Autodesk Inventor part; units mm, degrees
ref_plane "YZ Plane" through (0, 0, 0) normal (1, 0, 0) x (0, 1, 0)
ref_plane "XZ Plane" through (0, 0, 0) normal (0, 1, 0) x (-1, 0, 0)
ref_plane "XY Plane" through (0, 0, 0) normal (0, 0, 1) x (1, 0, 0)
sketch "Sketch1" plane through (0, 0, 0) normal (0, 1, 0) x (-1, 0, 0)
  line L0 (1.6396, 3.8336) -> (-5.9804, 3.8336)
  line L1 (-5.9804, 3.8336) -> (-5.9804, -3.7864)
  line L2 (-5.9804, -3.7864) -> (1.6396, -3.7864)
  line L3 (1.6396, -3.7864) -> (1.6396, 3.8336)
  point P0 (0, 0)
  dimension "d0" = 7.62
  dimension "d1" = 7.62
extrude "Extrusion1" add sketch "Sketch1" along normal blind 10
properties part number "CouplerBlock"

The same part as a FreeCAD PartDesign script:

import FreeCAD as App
import Part
import Sketcher
Q = App.Units.Quantity


def add_polygon(sketch, points):
    """Adds a closed chain of lines whose ends are joined by coincident constraints."""
    first, n = sketch.GeometryCount, len(points)
    for a, b in zip(points, points[1:] + points[:1]):
        sketch.addGeometry(Part.LineSegment(App.Vector(*a, 0), App.Vector(*b, 0)), False)
    for i in range(n):
        sketch.addConstraint(Sketcher.Constraint("Coincident", first + i, 2, first + (i + 1) % n, 1))

doc = App.newDocument("Part")
params = doc.addObject("Spreadsheet::Sheet", "Params")
for row, (alias, value) in enumerate([
    ("sketch1_width", "0.3 in"),
    ("pad1_length", "0.3937008 in"),
], start=1):
    params.set(f"A{row}", alias)
    params.set(f"B{row}", "=" + value)
    params.setAlias(f"B{row}", alias)

body = doc.addObject("PartDesign::Body", "Body")

# Sketch on XZ plane
sketch1 = body.newObject("Sketcher::SketchObject", "Sketch")
sketch1.AttachmentSupport = (doc.getObject("XZ_Plane"), [""])
sketch1.MapMode = "FlatFace"
add_polygon(sketch1, [(-2, -4), (-2, 4), (6, 4), (6, -4)])  # lines 0-3
sketch1.addConstraint(Sketcher.Constraint("Vertical", 0))
sketch1.addConstraint(Sketcher.Constraint("Horizontal", 1))
sketch1.addConstraint(Sketcher.Constraint("Vertical", 2))
sketch1.addConstraint(Sketcher.Constraint("Horizontal", 3))
sketch1.addConstraint(Sketcher.Constraint("Equal", 3, 0))
sketch1.addConstraint(Sketcher.Constraint("DistanceX", 1, 1, 1, 2, Q("0.3 in")))
sketch1.addConstraint(Sketcher.Constraint("DistanceX", 0, 2, -1, 1, 1.6396))
sketch1.addConstraint(Sketcher.Constraint("DistanceY", -1, 1, 0, 2, 3.8336))
sketch1.setExpression("Constraints[9]", "Params.sketch1_width")
pad1 = body.newObject("PartDesign::Pad", "Pad")
pad1.Profile = sketch1
pad1.setExpression("Length", "Params.pad1_length")
pad1.Reversed = True

doc.recompute()
